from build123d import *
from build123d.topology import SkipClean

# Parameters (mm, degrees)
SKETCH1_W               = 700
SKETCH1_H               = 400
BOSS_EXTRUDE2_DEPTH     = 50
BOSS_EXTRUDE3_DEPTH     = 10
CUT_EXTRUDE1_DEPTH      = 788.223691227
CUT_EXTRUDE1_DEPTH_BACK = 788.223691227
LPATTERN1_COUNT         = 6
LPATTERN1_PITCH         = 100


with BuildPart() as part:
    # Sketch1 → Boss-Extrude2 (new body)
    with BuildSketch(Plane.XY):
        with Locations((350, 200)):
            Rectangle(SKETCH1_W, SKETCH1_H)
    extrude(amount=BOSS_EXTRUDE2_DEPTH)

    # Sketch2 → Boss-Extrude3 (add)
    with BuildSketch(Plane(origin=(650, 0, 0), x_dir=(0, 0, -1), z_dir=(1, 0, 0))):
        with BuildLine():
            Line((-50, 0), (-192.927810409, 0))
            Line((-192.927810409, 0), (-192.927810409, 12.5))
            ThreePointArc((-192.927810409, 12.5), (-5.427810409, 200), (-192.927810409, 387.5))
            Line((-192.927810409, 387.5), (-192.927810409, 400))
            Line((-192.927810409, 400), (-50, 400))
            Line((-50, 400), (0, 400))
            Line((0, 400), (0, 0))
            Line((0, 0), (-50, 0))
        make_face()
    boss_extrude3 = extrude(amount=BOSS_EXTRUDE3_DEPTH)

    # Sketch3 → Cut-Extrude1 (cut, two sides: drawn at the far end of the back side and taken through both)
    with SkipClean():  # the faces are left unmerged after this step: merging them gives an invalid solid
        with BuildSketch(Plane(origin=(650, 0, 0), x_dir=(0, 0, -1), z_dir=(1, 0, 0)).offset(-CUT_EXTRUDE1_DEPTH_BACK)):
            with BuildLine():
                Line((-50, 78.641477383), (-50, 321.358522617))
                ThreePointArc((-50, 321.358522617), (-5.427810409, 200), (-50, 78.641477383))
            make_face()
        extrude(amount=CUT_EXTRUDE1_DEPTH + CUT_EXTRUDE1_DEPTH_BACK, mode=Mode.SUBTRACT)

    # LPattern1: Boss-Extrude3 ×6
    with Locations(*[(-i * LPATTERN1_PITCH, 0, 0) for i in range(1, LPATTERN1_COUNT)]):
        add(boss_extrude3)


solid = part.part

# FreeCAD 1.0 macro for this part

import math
import FreeCAD as App
import Part
import Sketcher

V = App.Vector


def add_polygon(sketch, points):
    """Adds a closed chain of lines whose ends are joined by coincident constraints."""
    first, n = sketch.GeometryCount, len(points)
    for a, b in zip(points, points[1:] + points[:1]):
        sketch.addGeometry(Part.LineSegment(App.Vector(*a, 0), App.Vector(*b, 0)), False)
    for i in range(n):
        sketch.addConstraint(Sketcher.Constraint("Coincident", first + i, 2, first + (i + 1) % n, 1))

doc = App.newDocument("Part")
body = doc.addObject("PartDesign::Body", "Body")

# Sketch on XY plane
sketch1 = doc.addObject("Sketcher::SketchObject", "Sketch")
body.addObject(sketch1)
sketch1.AttachmentSupport = (doc.XY_Plane, [""])
sketch1.MapMode = "FlatFace"
add_polygon(sketch1, [(0, 400), (0, 0), (700, 0), (700, 400)])  # lines 0-3
sketch1.addConstraint([
    Sketcher.Constraint("Vertical", 0),
    Sketcher.Constraint("Horizontal", 1),
    Sketcher.Constraint("Vertical", 2),
    Sketcher.Constraint("Horizontal", 3),
    Sketcher.Constraint("Coincident", 0, 2, -1, 1),
    Sketcher.Constraint("DistanceX", 1, 1, 1, 2, 700.0),
    Sketcher.Constraint("DistanceY", 0, 2, 0, 1, 400.0),
])
pad1 = doc.addObject("PartDesign::Pad", "Pad")
body.addObject(pad1)
pad1.Profile = sketch1
pad1.Length = 50

# Sketch on YZ plane
sketch2 = doc.addObject("Sketcher::SketchObject", "Sketch001")
body.addObject(sketch2)
sketch2.AttachmentSupport = (doc.YZ_Plane, [""])
sketch2.MapMode = "FlatFace"
sketch2.AttachmentOffset = App.Placement(V(0, 0, 650), App.Rotation())
sketch2.addGeometry([
    Part.LineSegment(V(12.5, 192.92781, 0), V(0, 192.92781, 0)),  # 0
    Part.LineSegment(V(0, 192.92781, 0), V(0, 0, 0)),  # 1
    Part.LineSegment(V(0, 0, 0), V(400, 0, 0)),  # 2
    Part.LineSegment(V(400, 0, 0), V(400, 192.92781, 0)),  # 3
    Part.LineSegment(V(400, 192.92781, 0), V(387.5, 192.92781, 0)),  # 4
    Part.ArcOfCircle(Part.Circle(V(200, 192.92781, 0), V(0, 0, 1), 187.5), math.radians(180), math.radians(360)),  # 5
], False)
sketch2.addConstraint([
    Sketcher.Constraint("Coincident", 0, 2, 1, 1),
    Sketcher.Constraint("Coincident", 1, 2, 2, 1),
    Sketcher.Constraint("Coincident", 2, 2, 3, 1),
    Sketcher.Constraint("Coincident", 3, 2, 4, 1),
    Sketcher.Constraint("Coincident", 4, 2, 5, 2),
    Sketcher.Constraint("Coincident", 5, 1, 0, 1),
    Sketcher.Constraint("Horizontal", 0),
    Sketcher.Constraint("Vertical", 1),
    Sketcher.Constraint("Horizontal", 2),
    Sketcher.Constraint("Vertical", 3),
    Sketcher.Constraint("Horizontal", 4),
    Sketcher.Constraint("Coincident", 1, 2, -1, 1),
    Sketcher.Constraint("Horizontal", 5, 3, 0, 2),
    Sketcher.Constraint("Horizontal", 0, 2, 3, 2),
    Sketcher.Constraint("Equal", 0, 4),
    Sketcher.Constraint("Radius", 5, 187.5),
    Sketcher.Constraint("DistanceX", 2, 1, 2, 2, 400.0),
    Sketcher.Constraint("DistanceY", 1, 2, 1, 1, 192.92781),
])
pad2 = doc.addObject("PartDesign::Pad", "Pad001")
body.addObject(pad2)
pad2.Profile = sketch2
pad2.Length = 10

# Sketch on YZ plane
sketch3 = doc.addObject("Sketcher::SketchObject", "Sketch002")
body.addObject(sketch3)
sketch3.AttachmentSupport = (doc.YZ_Plane, [""])
sketch3.MapMode = "FlatFace"
sketch3.AttachmentOffset = App.Placement(V(0, 0, 650), App.Rotation())
sketch3.addGeometry([
    Part.LineSegment(V(321.358523, 50, 0), V(78.641477, 50, 0)),
    Part.ArcOfCircle(Part.Circle(V(200, 192.92781, 0), V(0, 0, 1), 187.5), math.radians(-130.334241), math.radians(-49.665759)),
], False)
sketch3.addConstraint([
    Sketcher.Constraint("Coincident", 0, 1, 1, 2),
    Sketcher.Constraint("Coincident", 1, 1, 0, 2),
    Sketcher.Constraint("Horizontal", 0),
    Sketcher.Constraint("Radius", 1, 187.5),
    Sketcher.Constraint("DistanceX", -1, 1, 1, 3, 200.0),
    Sketcher.Constraint("DistanceY", -1, 1, 0, 1, 50.0),
    Sketcher.Constraint("DistanceX", 0, 2, 0, 1, 242.717045),
])
pocket1 = doc.addObject("PartDesign::Pocket", "Pocket")
body.addObject(pocket1)
pocket1.Profile = sketch3
pocket1.Type = "ThroughAll"
pocket1.Midplane = True
doc.recompute()

linearpattern = doc.addObject("PartDesign::LinearPattern", "LinearPattern")
body.addObject(linearpattern)
linearpattern.Originals = [pad2]
linearpattern.Direction = (doc.X_Axis, [""])
linearpattern.Mode = "offset"
linearpattern.Offset = 100
linearpattern.Occurrences = 6
linearpattern.Reversed = True
body.Tip = linearpattern

doc.recompute()
